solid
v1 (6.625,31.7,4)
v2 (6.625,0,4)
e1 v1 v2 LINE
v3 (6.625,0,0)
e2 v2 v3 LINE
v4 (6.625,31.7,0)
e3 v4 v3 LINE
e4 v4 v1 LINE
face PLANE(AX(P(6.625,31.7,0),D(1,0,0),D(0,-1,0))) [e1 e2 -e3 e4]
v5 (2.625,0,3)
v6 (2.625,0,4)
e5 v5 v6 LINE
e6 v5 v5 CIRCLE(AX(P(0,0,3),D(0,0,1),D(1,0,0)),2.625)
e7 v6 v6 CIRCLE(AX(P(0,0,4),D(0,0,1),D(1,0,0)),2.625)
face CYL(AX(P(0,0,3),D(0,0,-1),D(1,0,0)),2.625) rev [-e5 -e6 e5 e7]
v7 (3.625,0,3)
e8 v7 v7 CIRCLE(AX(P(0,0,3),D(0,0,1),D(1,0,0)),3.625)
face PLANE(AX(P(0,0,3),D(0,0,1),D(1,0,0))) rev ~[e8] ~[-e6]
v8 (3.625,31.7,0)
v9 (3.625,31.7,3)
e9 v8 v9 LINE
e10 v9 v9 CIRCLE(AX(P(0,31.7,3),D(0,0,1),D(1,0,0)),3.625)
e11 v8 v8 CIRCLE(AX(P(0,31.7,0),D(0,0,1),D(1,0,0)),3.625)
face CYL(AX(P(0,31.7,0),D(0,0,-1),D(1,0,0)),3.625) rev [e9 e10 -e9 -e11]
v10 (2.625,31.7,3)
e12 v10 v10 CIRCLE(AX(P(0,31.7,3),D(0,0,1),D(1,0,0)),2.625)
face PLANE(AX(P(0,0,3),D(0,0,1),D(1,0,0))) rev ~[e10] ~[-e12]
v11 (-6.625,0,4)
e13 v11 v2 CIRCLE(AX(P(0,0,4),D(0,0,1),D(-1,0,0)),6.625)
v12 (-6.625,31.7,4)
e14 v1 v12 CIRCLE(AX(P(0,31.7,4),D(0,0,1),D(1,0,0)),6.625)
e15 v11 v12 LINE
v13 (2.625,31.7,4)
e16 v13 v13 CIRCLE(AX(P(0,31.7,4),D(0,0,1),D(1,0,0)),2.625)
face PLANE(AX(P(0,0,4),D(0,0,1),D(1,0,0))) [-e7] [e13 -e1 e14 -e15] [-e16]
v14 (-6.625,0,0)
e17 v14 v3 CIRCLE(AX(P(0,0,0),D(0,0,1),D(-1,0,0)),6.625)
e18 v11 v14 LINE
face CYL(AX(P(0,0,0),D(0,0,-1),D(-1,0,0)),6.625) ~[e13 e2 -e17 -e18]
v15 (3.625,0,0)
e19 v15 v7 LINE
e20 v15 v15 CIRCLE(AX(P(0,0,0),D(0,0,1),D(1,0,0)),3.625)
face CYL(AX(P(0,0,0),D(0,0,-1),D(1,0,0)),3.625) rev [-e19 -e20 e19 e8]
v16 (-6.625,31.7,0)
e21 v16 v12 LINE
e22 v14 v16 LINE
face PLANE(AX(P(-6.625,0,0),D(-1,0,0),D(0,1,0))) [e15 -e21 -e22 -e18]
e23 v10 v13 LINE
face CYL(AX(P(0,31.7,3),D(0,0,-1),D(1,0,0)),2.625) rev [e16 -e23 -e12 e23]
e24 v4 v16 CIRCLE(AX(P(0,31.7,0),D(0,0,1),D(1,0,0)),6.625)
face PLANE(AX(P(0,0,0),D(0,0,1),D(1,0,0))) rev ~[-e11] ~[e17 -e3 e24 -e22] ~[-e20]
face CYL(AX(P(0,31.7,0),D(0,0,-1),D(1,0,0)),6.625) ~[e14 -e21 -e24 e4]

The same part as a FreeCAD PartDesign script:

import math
import FreeCAD as App
import Part
import Sketcher
from FreeCAD import Vector
Q = App.Units.Quantity

doc = App.newDocument("Part")
body = doc.addObject("PartDesign::Body", "Body")

sketch1 = body.newObject("Sketcher::SketchObject", "Sketch")
sketch1.AttachmentSupport = (doc.getObject("XY_Plane"), [""])
sketch1.MapMode = "FlatFace"
sketch1.addGeometry(Part.LineSegment(Vector(6.625, 0, 0), Vector(6.625, 31.7, 0)), False)
sketch1.addGeometry(Part.ArcOfCircle(Part.Circle(Vector(0, 31.7, 0), Vector(0, 0, 1), 6.625), math.radians(0), math.radians(180)), False)
sketch1.addGeometry(Part.LineSegment(Vector(-6.625, 31.7, 0), Vector(-6.625, 0, 0)), False)
sketch1.addGeometry(Part.ArcOfCircle(Part.Circle(Vector(0, 0, 0), Vector(0, 0, 1), 6.625), math.radians(180), math.radians(360)), False)
sketch1.addGeometry(Part.Circle(Vector(0, 0, 0), Vector(0, 0, 1), 3.625), False)
sketch1.addGeometry(Part.Circle(Vector(0, 31.7, 0), Vector(0, 0, 1), 3.625), False)
sketch1.addConstraint(Sketcher.Constraint("Tangent", 0, 2, 1, 1))
sketch1.addConstraint(Sketcher.Constraint("Tangent", 1, 2, 2, 1))
sketch1.addConstraint(Sketcher.Constraint("Tangent", 2, 2, 3, 1))
sketch1.addConstraint(Sketcher.Constraint("Tangent", 3, 2, 0, 1))
sketch1.addConstraint(Sketcher.Constraint("Vertical", 0))
sketch1.addConstraint(Sketcher.Constraint("Vertical", 2))
sketch1.addConstraint(Sketcher.Constraint("Coincident", 3, 3, -1, 1))
sketch1.addConstraint(Sketcher.Constraint("Coincident", 4, 3, -1, 1))
sketch1.addConstraint(Sketcher.Constraint("Coincident", 5, 3, 1, 3))
sketch1.addConstraint(Sketcher.Constraint("Equal", 4, 5))
sketch1.addConstraint(Sketcher.Constraint("Diameter", 4, Q("7.25 mm")))
sketch1.addConstraint(Sketcher.Constraint("DistanceY", 0, 1, 0, 2, Q("31.7 mm")))
sketch1.addConstraint(Sketcher.Constraint("Radius", 1, Q("6.625 mm")))
pad1 = body.newObject("PartDesign::Pad", "Pad")
pad1.Profile = sketch1
pad1.Length = 3

sketch2 = body.newObject("Sketcher::SketchObject", "Sketch001")
sketch2.AttachmentSupport = (doc.getObject("XY_Plane"), [""])
sketch2.MapMode = "FlatFace"
sketch2.AttachmentOffset = App.Placement(Vector(0, 0, 3), App.Rotation())
sketch2.addGeometry(Part.LineSegment(Vector(6.625, 0, 0), Vector(6.625, 31.7, 0)), False)
sketch2.addGeometry(Part.ArcOfCircle(Part.Circle(Vector(0, 31.7, 0), Vector(0, 0, 1), 6.625), math.radians(0), math.radians(180)), False)
sketch2.addGeometry(Part.LineSegment(Vector(-6.625, 31.7, 0), Vector(-6.625, 0, 0)), False)
sketch2.addGeometry(Part.ArcOfCircle(Part.Circle(Vector(0, 0, 0), Vector(0, 0, 1), 6.625), math.radians(180), math.radians(360)), False)
sketch2.addGeometry(Part.Circle(Vector(0, 0, 0), Vector(0, 0, 1), 2.625), False)
sketch2.addGeometry(Part.Circle(Vector(0, 31.7, 0), Vector(0, 0, 1), 2.625), False)
sketch2.addConstraint(Sketcher.Constraint("Tangent", 0, 2, 1, 1))
sketch2.addConstraint(Sketcher.Constraint("Tangent", 1, 2, 2, 1))
sketch2.addConstraint(Sketcher.Constraint("Tangent", 2, 2, 3, 1))
sketch2.addConstraint(Sketcher.Constraint("Tangent", 3, 2, 0, 1))
sketch2.addConstraint(Sketcher.Constraint("Vertical", 0))
sketch2.addConstraint(Sketcher.Constraint("Vertical", 2))
sketch2.addConstraint(Sketcher.Constraint("Coincident", 3, 3, -1, 1))
sketch2.addConstraint(Sketcher.Constraint("Coincident", 4, 3, -1, 1))
sketch2.addConstraint(Sketcher.Constraint("Coincident", 5, 3, 1, 3))
sketch2.addConstraint(Sketcher.Constraint("Equal", 4, 5))
sketch2.addConstraint(Sketcher.Constraint("DistanceY", 0, 1, 0, 2, Q("31.7 mm")))
sketch2.addConstraint(Sketcher.Constraint("Diameter", 4, Q("5.25 mm")))
sketch2.addConstraint(Sketcher.Constraint("Radius", 1, Q("6.625 mm")))
pad2 = body.newObject("PartDesign::Pad", "Pad001")
pad2.Profile = sketch2
pad2.Length = 1

doc.recompute()
